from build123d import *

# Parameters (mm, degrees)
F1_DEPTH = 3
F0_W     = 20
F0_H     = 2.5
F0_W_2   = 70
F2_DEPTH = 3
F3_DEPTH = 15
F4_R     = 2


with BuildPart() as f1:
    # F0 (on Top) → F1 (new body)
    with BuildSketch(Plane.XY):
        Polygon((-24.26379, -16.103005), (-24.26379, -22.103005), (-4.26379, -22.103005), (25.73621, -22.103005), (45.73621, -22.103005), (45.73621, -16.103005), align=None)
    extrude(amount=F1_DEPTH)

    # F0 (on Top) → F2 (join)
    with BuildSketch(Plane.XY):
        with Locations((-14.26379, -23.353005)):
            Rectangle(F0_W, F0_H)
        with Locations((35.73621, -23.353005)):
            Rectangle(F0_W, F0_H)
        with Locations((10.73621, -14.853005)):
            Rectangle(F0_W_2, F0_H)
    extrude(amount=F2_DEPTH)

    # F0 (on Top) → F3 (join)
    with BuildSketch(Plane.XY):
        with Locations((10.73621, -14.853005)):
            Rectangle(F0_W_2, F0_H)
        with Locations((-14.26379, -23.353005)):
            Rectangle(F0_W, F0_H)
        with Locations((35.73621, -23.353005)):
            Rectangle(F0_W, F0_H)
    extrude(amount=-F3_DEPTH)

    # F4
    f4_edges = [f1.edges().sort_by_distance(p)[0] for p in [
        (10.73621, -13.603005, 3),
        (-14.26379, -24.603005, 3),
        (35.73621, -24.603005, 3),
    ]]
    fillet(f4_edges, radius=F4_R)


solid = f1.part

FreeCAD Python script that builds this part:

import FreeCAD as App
import Part
import Sketcher
from FreeCAD import Vector


def edges_at(feature, points):
    """Names of the edges that pass closest to the given points."""
    edges = feature.Shape.Edges
    near = lambda p: min(range(len(edges)), key=lambda i: edges[i].distToShape(Part.Vertex(*p))[0])
    return sorted({f"Edge{near(p) + 1}" for p in points})

doc = App.newDocument("Part")
body = doc.addObject("PartDesign::Body", "Body")

sketch1 = body.newObject("Sketcher::SketchObject", "Sketch")
sketch1.AttachmentSupport = (doc.getObject("XY_Plane"), [""])
sketch1.MapMode = "FlatFace"
sketch1.addGeometry(Part.LineSegment(Vector(-24, -16, 0), Vector(-24, -22, 0)), False)
sketch1.addGeometry(Part.LineSegment(Vector(-24, -22, 0), Vector(46, -22, 0)), False)
sketch1.addGeometry(Part.LineSegment(Vector(46, -22, 0), Vector(46, -16, 0)), False)
sketch1.addGeometry(Part.LineSegment(Vector(46, -16, 0), Vector(-24, -16, 0)), False)
sketch1.addConstraint(Sketcher.Constraint("Coincident", 0, 2, 1, 1))
sketch1.addConstraint(Sketcher.Constraint("Coincident", 1, 2, 2, 1))
sketch1.addConstraint(Sketcher.Constraint("Coincident", 2, 2, 3, 1))
sketch1.addConstraint(Sketcher.Constraint("Coincident", 3, 2, 0, 1))
sketch1.addConstraint(Sketcher.Constraint("Vertical", 0))
sketch1.addConstraint(Sketcher.Constraint("Horizontal", 1))
sketch1.addConstraint(Sketcher.Constraint("Vertical", 2))
sketch1.addConstraint(Sketcher.Constraint("Horizontal", 3))
sketch1.addConstraint(Sketcher.Constraint("DistanceX", 1, 1, 1, 2, 70.0))
sketch1.addConstraint(Sketcher.Constraint("DistanceY", 0, 2, 0, 1, 6.0))
sketch1.addConstraint(Sketcher.Constraint("DistanceX", 0, 2, -1, 1, 24.26379))
sketch1.addConstraint(Sketcher.Constraint("DistanceY", 0, 2, -1, 1, 22.103005))
pad1 = body.newObject("PartDesign::Pad", "Pad")
pad1.Profile = sketch1
pad1.Length = 3

sketch2 = body.newObject("Sketcher::SketchObject", "Sketch001")
sketch2.AttachmentSupport = (doc.getObject("XY_Plane"), [""])
sketch2.MapMode = "FlatFace"
sketch2.addGeometry(Part.LineSegment(Vector(-24.3, -22.1, 0), Vector(-24.3, -24.6, 0)), False)
sketch2.addGeometry(Part.LineSegment(Vector(-24.3, -24.6, 0), Vector(-4.3, -24.6, 0)), False)
sketch2.addGeometry(Part.LineSegment(Vector(-4.3, -24.6, 0), Vector(-4.3, -22.1, 0)), False)
sketch2.addGeometry(Part.LineSegment(Vector(-4.3, -22.1, 0), Vector(-24.3, -22.1, 0)), False)
sketch2.addGeometry(Part.LineSegment(Vector(25.7, -22.1, 0), Vector(25.7, -24.6, 0)), False)
sketch2.addGeometry(Part.LineSegment(Vector(25.7, -24.6, 0), Vector(45.7, -24.6, 0)), False)
sketch2.addGeometry(Part.LineSegment(Vector(45.7, -24.6, 0), Vector(45.7, -22.1, 0)), False)
sketch2.addGeometry(Part.LineSegment(Vector(45.7, -22.1, 0), Vector(25.7, -22.1, 0)), False)
sketch2.addGeometry(Part.LineSegment(Vector(-24.3, -13.6, 0), Vector(-24.3, -16.1, 0)), False)
sketch2.addGeometry(Part.LineSegment(Vector(-24.3, -16.1, 0), Vector(45.7, -16.1, 0)), False)
sketch2.addGeometry(Part.LineSegment(Vector(45.7, -16.1, 0), Vector(45.7, -13.6, 0)), False)
sketch2.addGeometry(Part.LineSegment(Vector(45.7, -13.6, 0), Vector(-24.3, -13.6, 0)), False)
sketch2.addConstraint(Sketcher.Constraint("Coincident", 0, 2, 1, 1))
sketch2.addConstraint(Sketcher.Constraint("Coincident", 1, 2, 2, 1))
sketch2.addConstraint(Sketcher.Constraint("Coincident", 2, 2, 3, 1))
sketch2.addConstraint(Sketcher.Constraint("Coincident", 3, 2, 0, 1))
sketch2.addConstraint(Sketcher.Constraint("Coincident", 4, 2, 5, 1))
sketch2.addConstraint(Sketcher.Constraint("Coincident", 5, 2, 6, 1))
sketch2.addConstraint(Sketcher.Constraint("Coincident", 6, 2, 7, 1))
sketch2.addConstraint(Sketcher.Constraint("Coincident", 7, 2, 4, 1))
sketch2.addConstraint(Sketcher.Constraint("Coincident", 8, 2, 9, 1))
sketch2.addConstraint(Sketcher.Constraint("Coincident", 9, 2, 10, 1))
sketch2.addConstraint(Sketcher.Constraint("Coincident", 10, 2, 11, 1))
sketch2.addConstraint(Sketcher.Constraint("Coincident", 11, 2, 8, 1))
sketch2.addConstraint(Sketcher.Constraint("Vertical", 0))
sketch2.addConstraint(Sketcher.Constraint("Horizontal", 1))
sketch2.addConstraint(Sketcher.Constraint("Vertical", 2))
sketch2.addConstraint(Sketcher.Constraint("Horizontal", 3))
sketch2.addConstraint(Sketcher.Constraint("Vertical", 4))
sketch2.addConstraint(Sketcher.Constraint("Horizontal", 5))
sketch2.addConstraint(Sketcher.Constraint("Vertical", 6))
sketch2.addConstraint(Sketcher.Constraint("Horizontal", 7))
sketch2.addConstraint(Sketcher.Constraint("Vertical", 8))
sketch2.addConstraint(Sketcher.Constraint("Horizontal", 9))
sketch2.addConstraint(Sketcher.Constraint("Vertical", 10))
sketch2.addConstraint(Sketcher.Constraint("Horizontal", 11))
sketch2.addConstraint(Sketcher.Constraint("Horizontal", 1, 2, 4, 2))
sketch2.addConstraint(Sketcher.Constraint("Horizontal", 3, 2, 6, 2))
sketch2.addConstraint(Sketcher.Constraint("Vertical", 3, 2, 8, 2))
sketch2.addConstraint(Sketcher.Constraint("Vertical", 6, 2, 9, 2))
sketch2.addConstraint(Sketcher.Constraint("Equal", 3, 5))
sketch2.addConstraint(Sketcher.Constraint("Equal", 6, 8))
sketch2.addConstraint(Sketcher.Constraint("DistanceX", 1, 1, 1, 2, 20.0))
sketch2.addConstraint(Sketcher.Constraint("DistanceX", 9, 1, 9, 2, 70.0))
sketch2.addConstraint(Sketcher.Constraint("DistanceY", 0, 2, 0, 1, 2.5))
sketch2.addConstraint(Sketcher.Constraint("DistanceY", 3, 2, 8, 2, 6.0))
sketch2.addConstraint(Sketcher.Constraint("DistanceX", 0, 2, -1, 1, 24.26379))
sketch2.addConstraint(Sketcher.Constraint("DistanceY", 0, 2, -1, 1, 24.603005))
pad2 = body.newObject("PartDesign::Pad", "Pad001")
pad2.Profile = sketch2
pad2.Length = 3

sketch3 = body.newObject("Sketcher::SketchObject", "Sketch002")
sketch3.AttachmentSupport = (doc.getObject("XY_Plane"), [""])
sketch3.MapMode = "FlatFace"
sketch3.addGeometry(Part.LineSegment(Vector(-24.3, -13.6, 0), Vector(-24.3, -16.1, 0)), False)
sketch3.addGeometry(Part.LineSegment(Vector(-24.3, -16.1, 0), Vector(45.7, -16.1, 0)), False)
sketch3.addGeometry(Part.LineSegment(Vector(45.7, -16.1, 0), Vector(45.7, -13.6, 0)), False)
sketch3.addGeometry(Part.LineSegment(Vector(45.7, -13.6, 0), Vector(-24.3, -13.6, 0)), False)
sketch3.addGeometry(Part.LineSegment(Vector(-24.3, -22.1, 0), Vector(-24.3, -24.6, 0)), False)
sketch3.addGeometry(Part.LineSegment(Vector(-24.3, -24.6, 0), Vector(-4.3, -24.6, 0)), False)
sketch3.addGeometry(Part.LineSegment(Vector(-4.3, -24.6, 0), Vector(-4.3, -22.1, 0)), False)
sketch3.addGeometry(Part.LineSegment(Vector(-4.3, -22.1, 0), Vector(-24.3, -22.1, 0)), False)
sketch3.addGeometry(Part.LineSegment(Vector(25.7, -22.1, 0), Vector(25.7, -24.6, 0)), False)
sketch3.addGeometry(Part.LineSegment(Vector(25.7, -24.6, 0), Vector(45.7, -24.6, 0)), False)
sketch3.addGeometry(Part.LineSegment(Vector(45.7, -24.6, 0), Vector(45.7, -22.1, 0)), False)
sketch3.addGeometry(Part.LineSegment(Vector(45.7, -22.1, 0), Vector(25.7, -22.1, 0)), False)
sketch3.addConstraint(Sketcher.Constraint("Coincident", 0, 2, 1, 1))
sketch3.addConstraint(Sketcher.Constraint("Coincident", 1, 2, 2, 1))
sketch3.addConstraint(Sketcher.Constraint("Coincident", 2, 2, 3, 1))
sketch3.addConstraint(Sketcher.Constraint("Coincident", 3, 2, 0, 1))
sketch3.addConstraint(Sketcher.Constraint("Coincident", 4, 2, 5, 1))
sketch3.addConstraint(Sketcher.Constraint("Coincident", 5, 2, 6, 1))
sketch3.addConstraint(Sketcher.Constraint("Coincident", 6, 2, 7, 1))
sketch3.addConstraint(Sketcher.Constraint("Coincident", 7, 2, 4, 1))
sketch3.addConstraint(Sketcher.Constraint("Coincident", 8, 2, 9, 1))
sketch3.addConstraint(Sketcher.Constraint("Coincident", 9, 2, 10, 1))
sketch3.addConstraint(Sketcher.Constraint("Coincident", 10, 2, 11, 1))
sketch3.addConstraint(Sketcher.Constraint("Coincident", 11, 2, 8, 1))
sketch3.addConstraint(Sketcher.Constraint("Vertical", 0))
sketch3.addConstraint(Sketcher.Constraint("Horizontal", 1))
sketch3.addConstraint(Sketcher.Constraint("Vertical", 2))
sketch3.addConstraint(Sketcher.Constraint("Horizontal", 3))
sketch3.addConstraint(Sketcher.Constraint("Vertical", 4))
sketch3.addConstraint(Sketcher.Constraint("Horizontal", 5))
sketch3.addConstraint(Sketcher.Constraint("Vertical", 6))
sketch3.addConstraint(Sketcher.Constraint("Horizontal", 7))
sketch3.addConstraint(Sketcher.Constraint("Vertical", 8))
sketch3.addConstraint(Sketcher.Constraint("Horizontal", 9))
sketch3.addConstraint(Sketcher.Constraint("Vertical", 10))
sketch3.addConstraint(Sketcher.Constraint("Horizontal", 11))
sketch3.addConstraint(Sketcher.Constraint("Horizontal", 5, 2, 8, 2))
sketch3.addConstraint(Sketcher.Constraint("Horizontal", 7, 2, 10, 2))
sketch3.addConstraint(Sketcher.Constraint("Vertical", 3, 2, 4, 2))
sketch3.addConstraint(Sketcher.Constraint("Vertical", 2, 2, 9, 2))
sketch3.addConstraint(Sketcher.Constraint("Equal", 7, 9))
sketch3.addConstraint(Sketcher.Constraint("Equal", 2, 4))
sketch3.addConstraint(Sketcher.Constraint("DistanceX", 1, 1, 1, 2, 70.0))
sketch3.addConstraint(Sketcher.Constraint("DistanceX", 5, 1, 5, 2, 20.0))
sketch3.addConstraint(Sketcher.Constraint("DistanceY", 0, 2, 0, 1, 2.5))
sketch3.addConstraint(Sketcher.Constraint("DistanceY", 4, 2, 3, 2, 11.0))
sketch3.addConstraint(Sketcher.Constraint("DistanceX", 0, 2, -1, 1, 24.26379))
sketch3.addConstraint(Sketcher.Constraint("DistanceY", 0, 2, -1, 1, 16.103005))
pad3 = body.newObject("PartDesign::Pad", "Pad002")
pad3.Profile = sketch3
pad3.Length = 15
pad3.Reversed = True
doc.recompute()

fillet = body.newObject("PartDesign::Fillet", "Fillet")
fillet.Base = (pad3, edges_at(pad3, [(10.736, -13.603, 3), (-14.264, -24.603, 3), (35.736, -24.603, 3)]))
fillet.Radius = 2

doc.recompute()
